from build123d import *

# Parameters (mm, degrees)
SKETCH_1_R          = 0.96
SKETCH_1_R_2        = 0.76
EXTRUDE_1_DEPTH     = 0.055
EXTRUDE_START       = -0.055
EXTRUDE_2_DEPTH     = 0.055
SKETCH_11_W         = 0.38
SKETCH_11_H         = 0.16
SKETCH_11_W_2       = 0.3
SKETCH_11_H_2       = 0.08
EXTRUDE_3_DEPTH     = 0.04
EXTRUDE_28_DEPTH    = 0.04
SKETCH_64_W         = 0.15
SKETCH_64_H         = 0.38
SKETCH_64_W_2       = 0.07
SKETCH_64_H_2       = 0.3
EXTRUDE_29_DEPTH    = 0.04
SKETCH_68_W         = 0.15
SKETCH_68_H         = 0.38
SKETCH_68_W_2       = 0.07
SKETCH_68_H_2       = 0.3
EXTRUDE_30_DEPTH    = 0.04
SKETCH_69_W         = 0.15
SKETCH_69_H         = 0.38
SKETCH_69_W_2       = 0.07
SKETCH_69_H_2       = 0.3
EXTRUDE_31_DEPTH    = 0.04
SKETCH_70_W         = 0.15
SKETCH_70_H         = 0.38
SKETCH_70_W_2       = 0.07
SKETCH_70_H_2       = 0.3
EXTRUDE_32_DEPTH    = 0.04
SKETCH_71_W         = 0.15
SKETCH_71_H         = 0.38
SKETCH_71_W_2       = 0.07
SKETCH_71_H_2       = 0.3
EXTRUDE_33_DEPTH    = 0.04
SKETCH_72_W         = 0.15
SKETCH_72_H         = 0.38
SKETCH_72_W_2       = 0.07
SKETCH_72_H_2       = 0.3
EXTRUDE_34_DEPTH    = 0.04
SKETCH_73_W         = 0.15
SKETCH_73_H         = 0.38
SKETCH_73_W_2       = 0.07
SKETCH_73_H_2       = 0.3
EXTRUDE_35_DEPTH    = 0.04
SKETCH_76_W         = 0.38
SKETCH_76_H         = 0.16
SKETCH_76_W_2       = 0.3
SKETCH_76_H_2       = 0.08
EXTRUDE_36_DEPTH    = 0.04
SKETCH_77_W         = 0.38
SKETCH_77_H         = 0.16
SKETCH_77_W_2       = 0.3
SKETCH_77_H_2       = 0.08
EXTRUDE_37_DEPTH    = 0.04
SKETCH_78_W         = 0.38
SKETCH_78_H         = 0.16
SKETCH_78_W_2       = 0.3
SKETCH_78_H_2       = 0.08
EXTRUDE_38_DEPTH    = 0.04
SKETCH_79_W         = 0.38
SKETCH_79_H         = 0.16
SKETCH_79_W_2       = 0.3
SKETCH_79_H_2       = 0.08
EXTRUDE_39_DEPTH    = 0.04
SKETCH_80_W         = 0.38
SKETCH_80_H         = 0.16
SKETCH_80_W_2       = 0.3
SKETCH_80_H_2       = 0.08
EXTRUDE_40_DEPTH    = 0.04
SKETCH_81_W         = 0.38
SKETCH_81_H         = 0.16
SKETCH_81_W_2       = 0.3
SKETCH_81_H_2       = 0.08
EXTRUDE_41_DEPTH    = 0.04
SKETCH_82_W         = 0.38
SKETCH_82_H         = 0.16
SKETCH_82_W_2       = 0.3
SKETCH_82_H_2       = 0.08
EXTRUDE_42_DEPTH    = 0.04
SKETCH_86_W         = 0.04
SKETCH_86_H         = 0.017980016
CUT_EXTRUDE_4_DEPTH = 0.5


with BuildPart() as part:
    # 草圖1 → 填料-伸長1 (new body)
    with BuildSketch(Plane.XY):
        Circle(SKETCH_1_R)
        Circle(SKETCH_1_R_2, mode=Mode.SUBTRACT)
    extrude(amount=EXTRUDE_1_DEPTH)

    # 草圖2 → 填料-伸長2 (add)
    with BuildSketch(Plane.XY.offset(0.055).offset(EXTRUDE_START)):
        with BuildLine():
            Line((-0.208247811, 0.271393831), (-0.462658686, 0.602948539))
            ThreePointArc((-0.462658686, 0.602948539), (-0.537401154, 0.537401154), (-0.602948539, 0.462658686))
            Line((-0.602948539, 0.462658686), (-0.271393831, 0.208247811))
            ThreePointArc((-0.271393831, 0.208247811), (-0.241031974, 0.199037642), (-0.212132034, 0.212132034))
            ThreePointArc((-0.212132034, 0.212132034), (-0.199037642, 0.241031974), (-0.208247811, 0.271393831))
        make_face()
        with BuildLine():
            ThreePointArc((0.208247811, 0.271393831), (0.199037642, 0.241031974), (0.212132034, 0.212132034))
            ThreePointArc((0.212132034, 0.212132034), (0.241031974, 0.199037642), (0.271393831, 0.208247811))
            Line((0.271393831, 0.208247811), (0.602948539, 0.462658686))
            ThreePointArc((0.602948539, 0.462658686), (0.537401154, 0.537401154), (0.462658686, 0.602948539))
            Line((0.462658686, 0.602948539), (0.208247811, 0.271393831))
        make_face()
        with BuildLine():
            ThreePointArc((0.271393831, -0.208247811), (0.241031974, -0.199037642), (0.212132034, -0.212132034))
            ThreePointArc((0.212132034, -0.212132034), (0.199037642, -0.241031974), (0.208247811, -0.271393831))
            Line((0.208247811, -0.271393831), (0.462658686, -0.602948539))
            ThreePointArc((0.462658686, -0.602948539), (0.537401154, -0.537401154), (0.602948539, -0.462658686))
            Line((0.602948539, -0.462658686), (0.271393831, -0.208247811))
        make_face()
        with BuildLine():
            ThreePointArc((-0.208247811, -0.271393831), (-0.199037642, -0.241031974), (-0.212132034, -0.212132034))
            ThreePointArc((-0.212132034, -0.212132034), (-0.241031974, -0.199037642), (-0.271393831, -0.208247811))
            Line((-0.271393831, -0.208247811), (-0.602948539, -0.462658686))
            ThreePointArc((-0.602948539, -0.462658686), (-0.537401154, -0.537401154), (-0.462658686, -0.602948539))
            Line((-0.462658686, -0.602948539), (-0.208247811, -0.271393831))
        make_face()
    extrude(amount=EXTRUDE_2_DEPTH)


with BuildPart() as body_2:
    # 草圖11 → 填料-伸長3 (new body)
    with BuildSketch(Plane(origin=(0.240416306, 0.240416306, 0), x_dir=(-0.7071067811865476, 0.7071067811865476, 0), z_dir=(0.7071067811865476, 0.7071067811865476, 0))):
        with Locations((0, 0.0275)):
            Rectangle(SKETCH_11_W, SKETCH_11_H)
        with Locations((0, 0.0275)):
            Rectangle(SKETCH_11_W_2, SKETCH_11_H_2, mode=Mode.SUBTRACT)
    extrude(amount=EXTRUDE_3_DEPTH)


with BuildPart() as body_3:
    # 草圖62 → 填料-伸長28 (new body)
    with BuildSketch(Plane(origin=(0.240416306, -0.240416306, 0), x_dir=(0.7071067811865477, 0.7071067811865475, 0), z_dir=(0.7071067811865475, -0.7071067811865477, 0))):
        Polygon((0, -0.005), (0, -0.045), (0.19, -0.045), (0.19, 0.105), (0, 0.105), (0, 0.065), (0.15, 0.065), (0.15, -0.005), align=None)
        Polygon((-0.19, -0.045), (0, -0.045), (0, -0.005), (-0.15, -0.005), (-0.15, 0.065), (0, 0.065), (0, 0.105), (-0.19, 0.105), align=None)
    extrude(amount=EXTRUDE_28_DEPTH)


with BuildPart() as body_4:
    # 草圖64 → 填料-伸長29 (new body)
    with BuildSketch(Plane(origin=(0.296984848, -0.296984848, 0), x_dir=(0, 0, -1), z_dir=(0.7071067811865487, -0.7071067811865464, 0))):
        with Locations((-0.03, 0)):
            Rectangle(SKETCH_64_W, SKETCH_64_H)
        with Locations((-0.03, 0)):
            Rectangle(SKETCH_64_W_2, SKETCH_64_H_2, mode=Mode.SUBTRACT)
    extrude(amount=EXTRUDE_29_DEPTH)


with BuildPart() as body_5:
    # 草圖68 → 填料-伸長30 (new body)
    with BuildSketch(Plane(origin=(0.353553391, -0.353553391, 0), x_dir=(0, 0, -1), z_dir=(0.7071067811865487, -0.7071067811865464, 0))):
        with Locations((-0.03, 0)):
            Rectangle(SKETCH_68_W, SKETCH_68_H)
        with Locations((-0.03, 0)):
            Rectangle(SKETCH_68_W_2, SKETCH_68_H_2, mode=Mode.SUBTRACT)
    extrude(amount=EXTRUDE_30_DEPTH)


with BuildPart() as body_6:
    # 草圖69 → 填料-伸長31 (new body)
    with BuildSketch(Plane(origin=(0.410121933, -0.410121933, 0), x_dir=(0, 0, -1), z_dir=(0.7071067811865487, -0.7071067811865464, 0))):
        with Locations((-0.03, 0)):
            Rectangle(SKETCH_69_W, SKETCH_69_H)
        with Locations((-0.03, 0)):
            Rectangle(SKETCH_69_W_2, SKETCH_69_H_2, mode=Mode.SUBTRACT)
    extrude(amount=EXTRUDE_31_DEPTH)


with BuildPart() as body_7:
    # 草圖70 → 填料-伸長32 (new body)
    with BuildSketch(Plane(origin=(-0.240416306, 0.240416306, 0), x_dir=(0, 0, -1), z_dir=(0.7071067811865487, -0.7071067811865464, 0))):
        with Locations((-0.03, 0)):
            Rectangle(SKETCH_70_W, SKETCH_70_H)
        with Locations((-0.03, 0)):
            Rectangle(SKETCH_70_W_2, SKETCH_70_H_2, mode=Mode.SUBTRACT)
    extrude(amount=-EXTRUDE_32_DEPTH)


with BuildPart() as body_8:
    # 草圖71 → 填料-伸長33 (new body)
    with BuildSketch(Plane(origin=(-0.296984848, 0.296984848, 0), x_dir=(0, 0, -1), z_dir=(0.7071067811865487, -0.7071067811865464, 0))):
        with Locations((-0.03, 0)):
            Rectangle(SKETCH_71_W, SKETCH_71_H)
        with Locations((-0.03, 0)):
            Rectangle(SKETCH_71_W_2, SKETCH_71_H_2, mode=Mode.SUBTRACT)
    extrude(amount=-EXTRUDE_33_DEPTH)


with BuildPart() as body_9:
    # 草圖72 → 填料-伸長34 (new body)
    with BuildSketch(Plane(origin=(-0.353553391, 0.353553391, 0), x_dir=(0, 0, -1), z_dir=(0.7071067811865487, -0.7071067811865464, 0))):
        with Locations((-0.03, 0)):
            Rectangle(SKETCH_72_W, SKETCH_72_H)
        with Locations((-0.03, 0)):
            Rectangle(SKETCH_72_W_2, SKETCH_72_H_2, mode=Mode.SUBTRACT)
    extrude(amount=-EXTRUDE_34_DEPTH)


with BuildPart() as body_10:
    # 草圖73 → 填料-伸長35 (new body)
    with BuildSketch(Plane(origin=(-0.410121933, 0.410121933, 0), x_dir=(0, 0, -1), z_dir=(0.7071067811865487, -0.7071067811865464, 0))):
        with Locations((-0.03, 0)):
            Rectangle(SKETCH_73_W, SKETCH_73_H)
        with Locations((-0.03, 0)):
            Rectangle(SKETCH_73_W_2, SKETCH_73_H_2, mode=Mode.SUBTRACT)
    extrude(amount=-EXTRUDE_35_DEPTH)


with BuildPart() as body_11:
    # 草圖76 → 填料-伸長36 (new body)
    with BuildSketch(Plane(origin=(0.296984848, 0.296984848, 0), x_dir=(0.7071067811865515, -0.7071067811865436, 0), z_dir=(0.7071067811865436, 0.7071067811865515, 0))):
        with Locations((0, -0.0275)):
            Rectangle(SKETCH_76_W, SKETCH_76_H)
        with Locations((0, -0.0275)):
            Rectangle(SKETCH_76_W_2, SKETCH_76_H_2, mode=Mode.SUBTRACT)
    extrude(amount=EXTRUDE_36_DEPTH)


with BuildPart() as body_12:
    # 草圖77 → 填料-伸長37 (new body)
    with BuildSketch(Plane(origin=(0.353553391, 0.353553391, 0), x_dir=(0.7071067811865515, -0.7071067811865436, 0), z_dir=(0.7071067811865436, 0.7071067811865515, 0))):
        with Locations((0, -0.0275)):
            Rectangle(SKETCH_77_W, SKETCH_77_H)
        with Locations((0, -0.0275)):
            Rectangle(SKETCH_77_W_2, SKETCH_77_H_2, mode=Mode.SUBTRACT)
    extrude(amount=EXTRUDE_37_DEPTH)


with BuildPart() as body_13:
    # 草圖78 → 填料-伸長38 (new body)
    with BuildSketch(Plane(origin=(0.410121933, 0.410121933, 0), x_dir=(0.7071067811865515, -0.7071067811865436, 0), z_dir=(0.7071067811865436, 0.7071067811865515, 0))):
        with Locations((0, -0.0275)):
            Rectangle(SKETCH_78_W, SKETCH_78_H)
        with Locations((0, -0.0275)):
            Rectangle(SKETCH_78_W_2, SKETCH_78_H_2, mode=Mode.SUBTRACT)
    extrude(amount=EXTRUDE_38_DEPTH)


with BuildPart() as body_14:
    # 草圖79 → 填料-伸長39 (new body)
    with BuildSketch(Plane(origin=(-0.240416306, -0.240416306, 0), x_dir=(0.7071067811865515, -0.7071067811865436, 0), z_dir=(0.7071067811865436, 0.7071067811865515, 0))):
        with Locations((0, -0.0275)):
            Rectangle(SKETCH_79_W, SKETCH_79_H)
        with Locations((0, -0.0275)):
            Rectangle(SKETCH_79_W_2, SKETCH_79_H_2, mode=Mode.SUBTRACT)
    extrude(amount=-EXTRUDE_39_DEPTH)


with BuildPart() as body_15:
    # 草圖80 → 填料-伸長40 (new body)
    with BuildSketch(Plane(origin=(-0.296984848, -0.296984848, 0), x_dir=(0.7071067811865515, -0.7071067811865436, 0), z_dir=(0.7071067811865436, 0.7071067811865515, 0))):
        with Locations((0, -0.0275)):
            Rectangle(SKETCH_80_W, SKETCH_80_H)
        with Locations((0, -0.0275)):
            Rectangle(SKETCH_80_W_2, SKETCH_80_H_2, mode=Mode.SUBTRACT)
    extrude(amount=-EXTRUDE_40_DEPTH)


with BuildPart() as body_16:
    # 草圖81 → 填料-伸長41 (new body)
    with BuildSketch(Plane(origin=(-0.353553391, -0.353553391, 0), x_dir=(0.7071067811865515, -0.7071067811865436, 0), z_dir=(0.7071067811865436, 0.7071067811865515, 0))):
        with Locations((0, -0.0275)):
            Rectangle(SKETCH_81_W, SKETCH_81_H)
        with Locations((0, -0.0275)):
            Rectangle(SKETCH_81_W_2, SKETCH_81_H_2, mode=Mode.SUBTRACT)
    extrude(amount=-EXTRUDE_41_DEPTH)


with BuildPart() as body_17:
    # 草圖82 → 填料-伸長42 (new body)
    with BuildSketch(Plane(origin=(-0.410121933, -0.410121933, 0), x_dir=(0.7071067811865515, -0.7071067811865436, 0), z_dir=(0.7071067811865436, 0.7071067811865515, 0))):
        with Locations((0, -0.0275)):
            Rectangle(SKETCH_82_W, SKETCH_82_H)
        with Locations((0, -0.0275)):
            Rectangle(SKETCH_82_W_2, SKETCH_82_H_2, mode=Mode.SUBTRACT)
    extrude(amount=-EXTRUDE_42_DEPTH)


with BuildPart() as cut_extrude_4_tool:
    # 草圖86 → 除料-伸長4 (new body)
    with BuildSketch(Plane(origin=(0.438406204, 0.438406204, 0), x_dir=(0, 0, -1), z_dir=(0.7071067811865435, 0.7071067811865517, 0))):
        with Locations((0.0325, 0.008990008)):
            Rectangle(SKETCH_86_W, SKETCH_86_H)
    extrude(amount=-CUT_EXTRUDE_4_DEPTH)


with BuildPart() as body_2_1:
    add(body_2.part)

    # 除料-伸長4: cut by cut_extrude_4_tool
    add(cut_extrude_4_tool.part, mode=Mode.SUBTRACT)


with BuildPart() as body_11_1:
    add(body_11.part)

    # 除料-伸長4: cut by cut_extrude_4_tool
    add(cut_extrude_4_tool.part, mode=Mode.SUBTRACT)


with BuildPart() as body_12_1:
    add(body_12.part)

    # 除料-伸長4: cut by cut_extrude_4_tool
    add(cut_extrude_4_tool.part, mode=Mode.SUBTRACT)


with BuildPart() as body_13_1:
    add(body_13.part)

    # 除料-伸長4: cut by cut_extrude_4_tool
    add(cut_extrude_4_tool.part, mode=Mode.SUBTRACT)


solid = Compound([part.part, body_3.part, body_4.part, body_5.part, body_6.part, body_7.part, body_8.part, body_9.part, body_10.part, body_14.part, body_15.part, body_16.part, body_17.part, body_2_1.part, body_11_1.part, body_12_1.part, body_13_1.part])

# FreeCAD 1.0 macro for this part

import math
import FreeCAD as App
import Part
import Sketcher
from FreeCAD import Vector
Q = App.Units.Quantity


def add_polygon(sketch, points):
    """Adds a closed chain of lines whose ends are joined by coincident constraints."""
    first, n = sketch.GeometryCount, len(points)
    for a, b in zip(points, points[1:] + points[:1]):
        sketch.addGeometry(Part.LineSegment(App.Vector(*a, 0), App.Vector(*b, 0)), False)
    for i in range(n):
        sketch.addConstraint(Sketcher.Constraint("Coincident", first + i, 2, first + (i + 1) % n, 1))

doc = App.newDocument("Part")
params = doc.addObject("Spreadsheet::Sheet", "Params")
for row, (alias, value) in enumerate([
    ("sketch1_diameter", "1.92 mm"),
    ("sketch1_diameter2", "1.52 mm"),
    ("pad1_length", "0.055 mm"),
    ("sketch2_radius", "0.76 mm"),
    ("pad2_length", "0.055 mm"),
    ("sketch3_width", "0.3 mm"),
    ("sketch3_width2", "0.38 mm"),
    ("sketch3_height", "0.16 mm"),
    ("sketch3_height2", "0.08 mm"),
    ("pad3_length", "0.04 mm"),
    ("sketch4_width", "0.3 mm"),
    ("sketch4_width2", "0.38 mm"),
    ("sketch4_height", "0.15 mm"),
    ("sketch4_height2", "0.07 mm"),
    ("pad4_length", "0.04 mm"),
    ("sketch5_height", "0.3 mm"),
    ("sketch5_width", "0.15 mm"),
    ("sketch5_width2", "0.07 mm"),
    ("sketch5_height2", "0.38 mm"),
    ("pad5_length", "0.04 mm"),
    ("sketch6_height", "0.3 mm"),
    ("sketch6_width", "0.15 mm"),
    ("sketch6_width2", "0.07 mm"),
    ("sketch6_height2", "0.38 mm"),
    ("pad6_length", "0.04 mm"),
    ("sketch7_height", "0.3 mm"),
    ("sketch7_width", "0.15 mm"),
    ("sketch7_width2", "0.07 mm"),
    ("sketch7_height2", "0.38 mm"),
    ("pad7_length", "0.04 mm"),
    ("sketch8_height", "0.3 mm"),
    ("sketch8_width", "0.15 mm"),
    ("sketch8_width2", "0.07 mm"),
    ("sketch8_height2", "0.38 mm"),
    ("pad8_length", "0.04 mm"),
    ("sketch9_height", "0.3 mm"),
    ("sketch9_width", "0.15 mm"),
    ("sketch9_width2", "0.07 mm"),
    ("sketch9_height2", "0.38 mm"),
    ("pad9_length", "0.04 mm"),
    ("sketch10_height", "0.3 mm"),
    ("sketch10_width", "0.15 mm"),
    ("sketch10_width2", "0.07 mm"),
    ("sketch10_height2", "0.38 mm"),
    ("pad10_length", "0.04 mm"),
    ("sketch11_height", "0.3 mm"),
    ("sketch11_width", "0.15 mm"),
    ("sketch11_width2", "0.07 mm"),
    ("sketch11_height2", "0.38 mm"),
    ("pad11_length", "0.04 mm"),
    ("sketch12_width", "0.3 mm"),
    ("sketch12_width2", "0.38 mm"),
    ("sketch12_height", "0.16 mm"),
    ("sketch12_height2", "0.08 mm"),
    ("pad12_length", "0.04 mm"),
    ("sketch13_width", "0.3 mm"),
    ("sketch13_width2", "0.38 mm"),
    ("sketch13_height", "0.16 mm"),
    ("sketch13_height2", "0.08 mm"),
    ("pad13_length", "0.04 mm"),
    ("sketch14_width", "0.3 mm"),
    ("sketch14_width2", "0.38 mm"),
    ("sketch14_height", "0.16 mm"),
    ("sketch14_height2", "0.08 mm"),
    ("pad14_length", "0.04 mm"),
    ("sketch15_width", "0.3 mm"),
    ("sketch15_width2", "0.38 mm"),
    ("sketch15_height", "0.16 mm"),
    ("sketch15_height2", "0.08 mm"),
    ("pad15_length", "0.04 mm"),
    ("sketch16_width", "0.3 mm"),
    ("sketch16_width2", "0.38 mm"),
    ("sketch16_height", "0.16 mm"),
    ("sketch16_height2", "0.08 mm"),
    ("pad16_length", "0.04 mm"),
    ("sketch17_width", "0.3 mm"),
    ("sketch17_width2", "0.38 mm"),
    ("sketch17_height", "0.16 mm"),
    ("sketch17_height2", "0.08 mm"),
    ("pad17_length", "0.04 mm"),
    ("sketch18_width", "0.3 mm"),
    ("sketch18_width2", "0.38 mm"),
    ("sketch18_height", "0.16 mm"),
    ("sketch18_height2", "0.08 mm"),
    ("pad18_length", "0.04 mm"),
    ("sketch19_width", "0.04 mm"),
    ("pad19_length", "0.5 mm"),
], start=1):
    params.set(f"A{row}", alias)
    params.set(f"B{row}", "=" + value)
    params.setAlias(f"B{row}", alias)

body = doc.addObject("PartDesign::Body", "Body")

# Sketch on XY plane
sketch1 = body.newObject("Sketcher::SketchObject", "Sketch")
sketch1.AttachmentSupport = (doc.getObject("XY_Plane"), [""])
sketch1.MapMode = "FlatFace"
sketch1.addGeometry([
    Part.Circle(Vector(0, 0, 0), Vector(0, 0, 1), 1),
    Part.Circle(Vector(0, 0, 0), Vector(0, 0, 1), 0.8),
], False)
sketch1.addConstraint([
    Sketcher.Constraint("Coincident", 0, 3, -1, 1),
    Sketcher.Constraint("Coincident", 1, 3, -1, 1),
    Sketcher.Constraint("Diameter", 0, 1.92),
    Sketcher.Constraint("Diameter", 1, 1.52),
])
sketch1.setExpression("Constraints[2]", "Params.sketch1_diameter")
sketch1.setExpression("Constraints[3]", "Params.sketch1_diameter2")
pad1 = body.newObject("PartDesign::Pad", "Pad")
pad1.Profile = sketch1
pad1.setExpression("Length", "Params.pad1_length")

# Sketch on XY plane
sketch2 = body.newObject("Sketcher::SketchObject", "Sketch001")
sketch2.AttachmentSupport = (doc.getObject("XY_Plane"), [""])
sketch2.MapMode = "FlatFace"
sketch2.addGeometry([
    Part.LineSegment(Vector(-0.208, 0.271, 0), Vector(-0.463, 0.603, 0)),  # 0
    Part.ArcOfCircle(Part.Circle(Vector(0, 0, 0), Vector(0, 0, 1), 0.76), math.radians(127.5), math.radians(142.5)),  # 1
    Part.LineSegment(Vector(-0.603, 0.463, 0), Vector(-0.271, 0.208, 0)),  # 2
    Part.ArcOfCircle(Part.Circle(Vector(-0.244, 0.244, 0), Vector(0, 0, 1), 0.045), math.radians(-128), math.radians(-45)),  # 3
    Part.ArcOfCircle(Part.Circle(Vector(-0.244, 0.244, 0), Vector(0, 0, 1), 0.045), math.radians(-45), math.radians(38)),  # 4
    Part.ArcOfCircle(Part.Circle(Vector(0.244, 0.244, 0), Vector(0, 0, 1), 0.045), math.radians(142), math.radians(225)),  # 5
    Part.ArcOfCircle(Part.Circle(Vector(0.244, 0.244, 0), Vector(0, 0, 1), 0.045), math.radians(-135), math.radians(-52)),  # 6
    Part.LineSegment(Vector(0.271, 0.208, 0), Vector(0.603, 0.463, 0)),  # 7
    Part.ArcOfCircle(Part.Circle(Vector(0, 0, 0), Vector(0, 0, 1), 0.76), math.radians(37.5), math.radians(52.5)),  # 8
    Part.LineSegment(Vector(0.463, 0.603, 0), Vector(0.208, 0.271, 0)),  # 9
    Part.ArcOfCircle(Part.Circle(Vector(0.244, -0.244, 0), Vector(0, 0, 1), 0.045), math.radians(52), math.radians(135)),  # 10
    Part.ArcOfCircle(Part.Circle(Vector(0.244, -0.244, 0), Vector(0, 0, 1), 0.045), math.radians(135), math.radians(218)),  # 11
    Part.LineSegment(Vector(0.208, -0.271, 0), Vector(0.463, -0.603, 0)),  # 12
    Part.ArcOfCircle(Part.Circle(Vector(0, 0, 0), Vector(0, 0, 1), 0.76), math.radians(-52.5), math.radians(-37.5)),  # 13
    Part.LineSegment(Vector(0.603, -0.463, 0), Vector(0.271, -0.208, 0)),  # 14
    Part.ArcOfCircle(Part.Circle(Vector(-0.244, -0.244, 0), Vector(0, 0, 1), 0.045), math.radians(-38), math.radians(45)),  # 15
    Part.ArcOfCircle(Part.Circle(Vector(-0.244, -0.244, 0), Vector(0, 0, 1), 0.045), math.radians(45), math.radians(128)),  # 16
    Part.LineSegment(Vector(-0.271, -0.208, 0), Vector(-0.603, -0.463, 0)),  # 17
    Part.ArcOfCircle(Part.Circle(Vector(0, 0, 0), Vector(0, 0, 1), 0.76), math.radians(-142.5), math.radians(-127.5)),  # 18
    Part.LineSegment(Vector(-0.463, -0.603, 0), Vector(-0.208, -0.271, 0)),  # 19
], False)
sketch2.addConstraint([
    Sketcher.Constraint("Coincident", 0, 2, 1, 1),
    Sketcher.Constraint("Coincident", 1, 2, 2, 1),
    Sketcher.Constraint("Tangent", 2, 2, 3, 1),
    Sketcher.Constraint("Tangent", 3, 2, 4, 1),
    Sketcher.Constraint("Tangent", 4, 2, 0, 1),
    Sketcher.Constraint("Tangent", 5, 2, 6, 1),
    Sketcher.Constraint("Tangent", 6, 2, 7, 1),
    Sketcher.Constraint("Coincident", 7, 2, 8, 1),
    Sketcher.Constraint("Coincident", 8, 2, 9, 1),
    Sketcher.Constraint("Tangent", 9, 2, 5, 1),
    Sketcher.Constraint("Tangent", 10, 2, 11, 1),
    Sketcher.Constraint("Tangent", 11, 2, 12, 1),
    Sketcher.Constraint("Coincident", 12, 2, 13, 1),
    Sketcher.Constraint("Coincident", 13, 2, 14, 1),
    Sketcher.Constraint("Tangent", 14, 2, 10, 1),
    Sketcher.Constraint("Tangent", 15, 2, 16, 1),
    Sketcher.Constraint("Tangent", 16, 2, 17, 1),
    Sketcher.Constraint("Coincident", 17, 2, 18, 1),
    Sketcher.Constraint("Coincident", 18, 2, 19, 1),
    Sketcher.Constraint("Tangent", 19, 2, 15, 1),
    Sketcher.Constraint("Coincident", 1, 3, -1, 1),
    Sketcher.Constraint("Coincident", 8, 3, -1, 1),
    Sketcher.Constraint("Coincident", 13, 3, -1, 1),
    Sketcher.Constraint("Coincident", 18, 3, -1, 1),
    Sketcher.Constraint("Equal", 3, 4),
    Sketcher.Constraint("Equal", 4, 5),
    Sketcher.Constraint("Equal", 5, 6),
    Sketcher.Constraint("Equal", 1, 8),
    Sketcher.Constraint("Equal", 6, 10),
    Sketcher.Constraint("Equal", 10, 11),
    Sketcher.Constraint("Equal", 8, 13),
    Sketcher.Constraint("Equal", 11, 15),
    Sketcher.Constraint("Equal", 15, 16),
    Sketcher.Constraint("Equal", 13, 18),
    Sketcher.Constraint("Symmetric", 3, 3, 10, 3, -1, 1),
    Sketcher.Constraint("Symmetric", 5, 3, 15, 3, -1, 1),
    Sketcher.Constraint("Symmetric", 3, 3, 5, 3, -2),
    Sketcher.Constraint("Perpendicular", 0, 7),
    Sketcher.Constraint("Perpendicular", 2, 9),
    Sketcher.Constraint("Perpendicular", 7, 12),
    Sketcher.Constraint("Perpendicular", 9, 14),
    Sketcher.Constraint("Perpendicular", 12, 17),
    Sketcher.Constraint("Perpendicular", 14, 19),
    Sketcher.Constraint("Horizontal", 3, 2, 5, 2),
    Sketcher.Constraint("Horizontal", 2, 2, 6, 2),
    Sketcher.Constraint("Horizontal", 10, 2, 15, 2),
    Sketcher.Constraint("Vertical", 5, 2, 10, 2),
    Sketcher.Constraint("Equal", 0, 2),
    Sketcher.Constraint("Radius", 1, 0.76),
    Sketcher.Constraint("Angle", 0, Q("127.5 deg")),
    Sketcher.Constraint("Radius", 3, 0.045036),
    Sketcher.Constraint("DistanceY", 6, 2, 8, 2, 0.394701),
    Sketcher.Constraint("DistanceX", 2, 2, 3, 2, 0.059262),
])
sketch2.setExpression("Constraints[48]", "Params.sketch2_radius")
pad2 = body.newObject("PartDesign::Pad", "Pad001")
pad2.Profile = sketch2
pad2.setExpression("Length", "Params.pad2_length")
body2 = doc.addObject("PartDesign::Body", "Body001")

# Sketch on an angled plane
sketch3 = body2.newObject("Sketcher::SketchObject", "Sketch002")
sketch3.Placement = App.Placement(Vector(0.240416, 0.240416, 0), App.Rotation(Vector(-0.707106781, 0.707106781, 0), Vector(0, 0, 0.999999999), Vector(0.707106781, 0.707106781, 0), "ZXY"))
add_polygon(sketch3, [(-0.19, 0.11), (-0.19, -0.05), (0.19, -0.05), (0.19, 0.11)])  # lines 0-3
add_polygon(sketch3, [(0.15, -0.01), (-0.15, -0.01), (-0.15, 0.07), (0.15, 0.07)])  # lines 4-7
sketch3.addConstraint([
    Sketcher.Constraint("Vertical", 0),
    Sketcher.Constraint("Horizontal", 1),
    Sketcher.Constraint("Vertical", 2),
    Sketcher.Constraint("Horizontal", 3),
    Sketcher.Constraint("Horizontal", 4),
    Sketcher.Constraint("Vertical", 5),
    Sketcher.Constraint("Horizontal", 6),
    Sketcher.Constraint("Vertical", 7),
    Sketcher.Constraint("DistanceX", 4, 2, 4, 1, 0.3),
    Sketcher.Constraint("DistanceX", 1, 1, 1, 2, 0.38),
    Sketcher.Constraint("DistanceY", 0, 2, 0, 1, 0.16),
    Sketcher.Constraint("DistanceY", 5, 1, 5, 2, 0.08),
    Sketcher.Constraint("DistanceX", 0, 2, -1, 1, 0.19),
    Sketcher.Constraint("DistanceX", 4, 2, -1, 1, 0.15),
    Sketcher.Constraint("DistanceY", 0, 2, 4, 2, 0.04),
    Sketcher.Constraint("DistanceY", 0, 2, -1, 1, 0.0525),
])
sketch3.setExpression("Constraints[16]", "Params.sketch3_width")
sketch3.setExpression("Constraints[17]", "Params.sketch3_width2")
sketch3.setExpression("Constraints[18]", "Params.sketch3_height")
sketch3.setExpression("Constraints[19]", "Params.sketch3_height2")
pad3 = body2.newObject("PartDesign::Pad", "Pad002")
pad3.Profile = sketch3
pad3.setExpression("Length", "Params.pad3_length")
body3 = doc.addObject("PartDesign::Body", "Body002")

# Sketch on an angled plane
sketch4 = body3.newObject("Sketcher::SketchObject", "Sketch003")
sketch4.Placement = App.Placement(Vector(0.240416, -0.240416, 0), App.Rotation(Vector(0.707106781, 0.707106781, 0), Vector(0, 0, 0.999999999), Vector(0.707106781, -0.707106781, 0), "ZXY"))
add_polygon(sketch4, [(0.19, -0.04), (0.19, 0.1), (-0.19, 0.1), (-0.19, -0.04)])  # lines 0-3
add_polygon(sketch4, [(0.15, 0.07), (0.15, -0.01), (-0.15, -0.01), (-0.15, 0.07)])  # lines 4-7
sketch4.addConstraint([
    Sketcher.Constraint("Vertical", 0),
    Sketcher.Constraint("Horizontal", 1),
    Sketcher.Constraint("Vertical", 2),
    Sketcher.Constraint("Horizontal", 3),
    Sketcher.Constraint("Vertical", 4),
    Sketcher.Constraint("Horizontal", 5),
    Sketcher.Constraint("Vertical", 6),
    Sketcher.Constraint("Horizontal", 7),
    Sketcher.Constraint("DistanceX", 5, 2, 5, 1, 0.3),
    Sketcher.Constraint("DistanceX", 1, 2, 1, 1, 0.38),
    Sketcher.Constraint("DistanceY", 0, 1, 0, 2, 0.15),
    Sketcher.Constraint("DistanceY", 4, 2, 4, 1, 0.07),
    Sketcher.Constraint("DistanceX", -1, 1, 0, 2, 0.19),
    Sketcher.Constraint("DistanceX", -1, 1, 4, 2, 0.15),
    Sketcher.Constraint("DistanceY", 3, 2, 4, 2, 0.04),
    Sketcher.Constraint("DistanceY", -1, 1, 0, 2, 0.105),
])
sketch4.setExpression("Constraints[16]", "Params.sketch4_width")
sketch4.setExpression("Constraints[17]", "Params.sketch4_width2")
sketch4.setExpression("Constraints[18]", "Params.sketch4_height")
sketch4.setExpression("Constraints[19]", "Params.sketch4_height2")
pad4 = body3.newObject("PartDesign::Pad", "Pad003")
pad4.Profile = sketch4
pad4.setExpression("Length", "Params.pad4_length")
body4 = doc.addObject("PartDesign::Body", "Body003")

# Sketch on an angled plane
sketch5 = body4.newObject("Sketcher::SketchObject", "Sketch004")
sketch5.Placement = App.Placement(Vector(0.296985, -0.296985, 0), App.Rotation(Vector(0, 0, -1), Vector(0.707106781, 0.707106781, 0), Vector(0.707106781, -0.707106781, 0), "ZXY"))
add_polygon(sketch5, [(-0.1, 0.19), (-0.1, -0.19), (0.04, -0.19), (0.04, 0.19)])  # lines 0-3
add_polygon(sketch5, [(0.01, -0.15), (-0.07, -0.15), (-0.07, 0.15), (0.01, 0.15)])  # lines 4-7
sketch5.addConstraint([
    Sketcher.Constraint("Vertical", 0),
    Sketcher.Constraint("Horizontal", 1),
    Sketcher.Constraint("Vertical", 2),
    Sketcher.Constraint("Horizontal", 3),
    Sketcher.Constraint("Horizontal", 4),
    Sketcher.Constraint("Vertical", 5),
    Sketcher.Constraint("Horizontal", 6),
    Sketcher.Constraint("Vertical", 7),
    Sketcher.Constraint("DistanceY", 5, 1, 5, 2, 0.3),
    Sketcher.Constraint("DistanceX", 1, 1, 1, 2, 0.15),
    Sketcher.Constraint("DistanceX", 4, 2, 4, 1, 0.07),
    Sketcher.Constraint("DistanceY", 0, 2, 0, 1, 0.38),
    Sketcher.Constraint("DistanceY", 0, 2, -1, 1, 0.19),
    Sketcher.Constraint("DistanceY", 4, 2, -1, 1, 0.15),
    Sketcher.Constraint("DistanceX", 0, 2, 4, 2, 0.04),
    Sketcher.Constraint("DistanceX", 0, 2, -1, 1, 0.105),
])
sketch5.setExpression("Constraints[16]", "Params.sketch5_height")
sketch5.setExpression("Constraints[17]", "Params.sketch5_width")
sketch5.setExpression("Constraints[18]", "Params.sketch5_width2")
sketch5.setExpression("Constraints[19]", "Params.sketch5_height2")
pad5 = body4.newObject("PartDesign::Pad", "Pad004")
pad5.Profile = sketch5
pad5.setExpression("Length", "Params.pad5_length")
body5 = doc.addObject("PartDesign::Body", "Body004")

# Sketch on an angled plane
sketch6 = body5.newObject("Sketcher::SketchObject", "Sketch005")
sketch6.Placement = App.Placement(Vector(0.353553, -0.353553, 0), App.Rotation(Vector(0, 0, -1), Vector(0.707106781, 0.707106781, 0), Vector(0.707106781, -0.707106781, 0), "ZXY"))
add_polygon(sketch6, [(-0.1, 0.19), (-0.1, -0.19), (0.04, -0.19), (0.04, 0.19)])  # lines 0-3
add_polygon(sketch6, [(0.01, -0.15), (-0.07, -0.15), (-0.07, 0.15), (0.01, 0.15)])  # lines 4-7
sketch6.addConstraint([
    Sketcher.Constraint("Vertical", 0),
    Sketcher.Constraint("Horizontal", 1),
    Sketcher.Constraint("Vertical", 2),
    Sketcher.Constraint("Horizontal", 3),
    Sketcher.Constraint("Horizontal", 4),
    Sketcher.Constraint("Vertical", 5),
    Sketcher.Constraint("Horizontal", 6),
    Sketcher.Constraint("Vertical", 7),
    Sketcher.Constraint("DistanceY", 5, 1, 5, 2, 0.3),
    Sketcher.Constraint("DistanceX", 1, 1, 1, 2, 0.15),
    Sketcher.Constraint("DistanceX", 4, 2, 4, 1, 0.07),
    Sketcher.Constraint("DistanceY", 0, 2, 0, 1, 0.38),
    Sketcher.Constraint("DistanceY", 0, 2, -1, 1, 0.19),
    Sketcher.Constraint("DistanceY", 4, 2, -1, 1, 0.15),
    Sketcher.Constraint("DistanceX", 0, 2, 4, 2, 0.04),
    Sketcher.Constraint("DistanceX", 0, 2, -1, 1, 0.105),
])
sketch6.setExpression("Constraints[16]", "Params.sketch6_height")
sketch6.setExpression("Constraints[17]", "Params.sketch6_width")
sketch6.setExpression("Constraints[18]", "Params.sketch6_width2")
sketch6.setExpression("Constraints[19]", "Params.sketch6_height2")
pad6 = body5.newObject("PartDesign::Pad", "Pad005")
pad6.Profile = sketch6
pad6.setExpression("Length", "Params.pad6_length")
body6 = doc.addObject("PartDesign::Body", "Body005")

# Sketch on an angled plane
sketch7 = body6.newObject("Sketcher::SketchObject", "Sketch006")
sketch7.Placement = App.Placement(Vector(0.410122, -0.410122, 0), App.Rotation(Vector(0, 0, -1), Vector(0.707106781, 0.707106781, 0), Vector(0.707106781, -0.707106781, 0), "ZXY"))
add_polygon(sketch7, [(-0.1, 0.19), (-0.1, -0.19), (0.04, -0.19), (0.04, 0.19)])  # lines 0-3
add_polygon(sketch7, [(0.01, -0.15), (-0.07, -0.15), (-0.07, 0.15), (0.01, 0.15)])  # lines 4-7
sketch7.addConstraint([
    Sketcher.Constraint("Vertical", 0),
    Sketcher.Constraint("Horizontal", 1),
    Sketcher.Constraint("Vertical", 2),
    Sketcher.Constraint("Horizontal", 3),
    Sketcher.Constraint("Horizontal", 4),
    Sketcher.Constraint("Vertical", 5),
    Sketcher.Constraint("Horizontal", 6),
    Sketcher.Constraint("Vertical", 7),
    Sketcher.Constraint("DistanceY", 5, 1, 5, 2, 0.3),
    Sketcher.Constraint("DistanceX", 1, 1, 1, 2, 0.15),
    Sketcher.Constraint("DistanceX", 4, 2, 4, 1, 0.07),
    Sketcher.Constraint("DistanceY", 0, 2, 0, 1, 0.38),
    Sketcher.Constraint("DistanceY", 0, 2, -1, 1, 0.19),
    Sketcher.Constraint("DistanceY", 4, 2, -1, 1, 0.15),
    Sketcher.Constraint("DistanceX", 0, 2, 4, 2, 0.04),
    Sketcher.Constraint("DistanceX", 0, 2, -1, 1, 0.105),
])
sketch7.setExpression("Constraints[16]", "Params.sketch7_height")
sketch7.setExpression("Constraints[17]", "Params.sketch7_width")
sketch7.setExpression("Constraints[18]", "Params.sketch7_width2")
sketch7.setExpression("Constraints[19]", "Params.sketch7_height2")
pad7 = body6.newObject("PartDesign::Pad", "Pad006")
pad7.Profile = sketch7
pad7.setExpression("Length", "Params.pad7_length")
body7 = doc.addObject("PartDesign::Body", "Body006")

# Sketch on an angled plane
sketch8 = body7.newObject("Sketcher::SketchObject", "Sketch007")
sketch8.Placement = App.Placement(Vector(-0.240416, 0.240416, 0), App.Rotation(Vector(0, 0, -1), Vector(0.707106781, 0.707106781, 0), Vector(0.707106781, -0.707106781, 0), "ZXY"))
add_polygon(sketch8, [(-0.1, 0.19), (-0.1, -0.19), (0.04, -0.19), (0.04, 0.19)])  # lines 0-3
add_polygon(sketch8, [(0.01, -0.15), (-0.07, -0.15), (-0.07, 0.15), (0.01, 0.15)])  # lines 4-7
sketch8.addConstraint([
    Sketcher.Constraint("Vertical", 0),
    Sketcher.Constraint("Horizontal", 1),
    Sketcher.Constraint("Vertical", 2),
    Sketcher.Constraint("Horizontal", 3),
    Sketcher.Constraint("Horizontal", 4),
    Sketcher.Constraint("Vertical", 5),
    Sketcher.Constraint("Horizontal", 6),
    Sketcher.Constraint("Vertical", 7),
    Sketcher.Constraint("DistanceY", 5, 1, 5, 2, 0.3),
    Sketcher.Constraint("DistanceX", 1, 1, 1, 2, 0.15),
    Sketcher.Constraint("DistanceX", 4, 2, 4, 1, 0.07),
    Sketcher.Constraint("DistanceY", 0, 2, 0, 1, 0.38),
    Sketcher.Constraint("DistanceY", 0, 2, -1, 1, 0.19),
    Sketcher.Constraint("DistanceY", 4, 2, -1, 1, 0.15),
    Sketcher.Constraint("DistanceX", 0, 2, 4, 2, 0.04),
    Sketcher.Constraint("DistanceX", 0, 2, -1, 1, 0.105),
])
sketch8.setExpression("Constraints[16]", "Params.sketch8_height")
sketch8.setExpression("Constraints[17]", "Params.sketch8_width")
sketch8.setExpression("Constraints[18]", "Params.sketch8_width2")
sketch8.setExpression("Constraints[19]", "Params.sketch8_height2")
pad8 = body7.newObject("PartDesign::Pad", "Pad007")
pad8.Profile = sketch8
pad8.setExpression("Length", "Params.pad8_length")
pad8.Reversed = True
body8 = doc.addObject("PartDesign::Body", "Body007")

# Sketch on an angled plane
sketch9 = body8.newObject("Sketcher::SketchObject", "Sketch008")
sketch9.Placement = App.Placement(Vector(-0.296985, 0.296985, 0), App.Rotation(Vector(0, 0, -1), Vector(0.707106781, 0.707106781, 0), Vector(0.707106781, -0.707106781, 0), "ZXY"))
add_polygon(sketch9, [(-0.1, 0.19), (-0.1, -0.19), (0.04, -0.19), (0.04, 0.19)])  # lines 0-3
add_polygon(sketch9, [(0.01, -0.15), (-0.07, -0.15), (-0.07, 0.15), (0.01, 0.15)])  # lines 4-7
sketch9.addConstraint([
    Sketcher.Constraint("Vertical", 0),
    Sketcher.Constraint("Horizontal", 1),
    Sketcher.Constraint("Vertical", 2),
    Sketcher.Constraint("Horizontal", 3),
    Sketcher.Constraint("Horizontal", 4),
    Sketcher.Constraint("Vertical", 5),
    Sketcher.Constraint("Horizontal", 6),
    Sketcher.Constraint("Vertical", 7),
    Sketcher.Constraint("DistanceY", 5, 1, 5, 2, 0.3),
    Sketcher.Constraint("DistanceX", 1, 1, 1, 2, 0.15),
    Sketcher.Constraint("DistanceX", 4, 2, 4, 1, 0.07),
    Sketcher.Constraint("DistanceY", 0, 2, 0, 1, 0.38),
    Sketcher.Constraint("DistanceY", 0, 2, -1, 1, 0.19),
    Sketcher.Constraint("DistanceY", 4, 2, -1, 1, 0.15),
    Sketcher.Constraint("DistanceX", 0, 2, 4, 2, 0.04),
    Sketcher.Constraint("DistanceX", 0, 2, -1, 1, 0.105),
])
sketch9.setExpression("Constraints[16]", "Params.sketch9_height")
sketch9.setExpression("Constraints[17]", "Params.sketch9_width")
sketch9.setExpression("Constraints[18]", "Params.sketch9_width2")
sketch9.setExpression("Constraints[19]", "Params.sketch9_height2")
pad9 = body8.newObject("PartDesign::Pad", "Pad008")
pad9.Profile = sketch9
pad9.setExpression("Length", "Params.pad9_length")
pad9.Reversed = True
body9 = doc.addObject("PartDesign::Body", "Body008")

# Sketch on an angled plane
sketch10 = body9.newObject("Sketcher::SketchObject", "Sketch009")
sketch10.Placement = App.Placement(Vector(-0.353553, 0.353553, 0), App.Rotation(Vector(0, 0, -1), Vector(0.707106781, 0.707106781, 0), Vector(0.707106781, -0.707106781, 0), "ZXY"))
add_polygon(sketch10, [(-0.1, 0.19), (-0.1, -0.19), (0.04, -0.19), (0.04, 0.19)])  # lines 0-3
add_polygon(sketch10, [(0.01, -0.15), (-0.07, -0.15), (-0.07, 0.15), (0.01, 0.15)])  # lines 4-7
sketch10.addConstraint([
    Sketcher.Constraint("Vertical", 0),
    Sketcher.Constraint("Horizontal", 1),
    Sketcher.Constraint("Vertical", 2),
    Sketcher.Constraint("Horizontal", 3),
    Sketcher.Constraint("Horizontal", 4),
    Sketcher.Constraint("Vertical", 5),
    Sketcher.Constraint("Horizontal", 6),
    Sketcher.Constraint("Vertical", 7),
    Sketcher.Constraint("DistanceY", 5, 1, 5, 2, 0.3),
    Sketcher.Constraint("DistanceX", 1, 1, 1, 2, 0.15),
    Sketcher.Constraint("DistanceX", 4, 2, 4, 1, 0.07),
    Sketcher.Constraint("DistanceY", 0, 2, 0, 1, 0.38),
    Sketcher.Constraint("DistanceY", 0, 2, -1, 1, 0.19),
    Sketcher.Constraint("DistanceY", 4, 2, -1, 1, 0.15),
    Sketcher.Constraint("DistanceX", 0, 2, 4, 2, 0.04),
    Sketcher.Constraint("DistanceX", 0, 2, -1, 1, 0.105),
])
sketch10.setExpression("Constraints[16]", "Params.sketch10_height")
sketch10.setExpression("Constraints[17]", "Params.sketch10_width")
sketch10.setExpression("Constraints[18]", "Params.sketch10_width2")
sketch10.setExpression("Constraints[19]", "Params.sketch10_height2")
pad10 = body9.newObject("PartDesign::Pad", "Pad009")
pad10.Profile = sketch10
pad10.setExpression("Length", "Params.pad10_length")
pad10.Reversed = True
body10 = doc.addObject("PartDesign::Body", "Body009")

# Sketch on an angled plane
sketch11 = body10.newObject("Sketcher::SketchObject", "Sketch010")
sketch11.Placement = App.Placement(Vector(-0.410122, 0.410122, 0), App.Rotation(Vector(0, 0, -1), Vector(0.707106781, 0.707106781, 0), Vector(0.707106781, -0.707106781, 0), "ZXY"))
add_polygon(sketch11, [(-0.1, 0.19), (-0.1, -0.19), (0.04, -0.19), (0.04, 0.19)])  # lines 0-3
add_polygon(sketch11, [(0.01, -0.15), (-0.07, -0.15), (-0.07, 0.15), (0.01, 0.15)])  # lines 4-7
sketch11.addConstraint([
    Sketcher.Constraint("Vertical", 0),
    Sketcher.Constraint("Horizontal", 1),
    Sketcher.Constraint("Vertical", 2),
    Sketcher.Constraint("Horizontal", 3),
    Sketcher.Constraint("Horizontal", 4),
    Sketcher.Constraint("Vertical", 5),
    Sketcher.Constraint("Horizontal", 6),
    Sketcher.Constraint("Vertical", 7),
    Sketcher.Constraint("DistanceY", 5, 1, 5, 2, 0.3),
    Sketcher.Constraint("DistanceX", 1, 1, 1, 2, 0.15),
    Sketcher.Constraint("DistanceX", 4, 2, 4, 1, 0.07),
    Sketcher.Constraint("DistanceY", 0, 2, 0, 1, 0.38),
    Sketcher.Constraint("DistanceY", 0, 2, -1, 1, 0.19),
    Sketcher.Constraint("DistanceY", 4, 2, -1, 1, 0.15),
    Sketcher.Constraint("DistanceX", 0, 2, 4, 2, 0.04),
    Sketcher.Constraint("DistanceX", 0, 2, -1, 1, 0.105),
])
sketch11.setExpression("Constraints[16]", "Params.sketch11_height")
sketch11.setExpression("Constraints[17]", "Params.sketch11_width")
sketch11.setExpression("Constraints[18]", "Params.sketch11_width2")
sketch11.setExpression("Constraints[19]", "Params.sketch11_height2")
pad11 = body10.newObject("PartDesign::Pad", "Pad010")
pad11.Profile = sketch11
pad11.setExpression("Length", "Params.pad11_length")
pad11.Reversed = True
body11 = doc.addObject("PartDesign::Body", "Body010")

# Sketch on an angled plane
sketch12 = body11.newObject("Sketcher::SketchObject", "Sketch011")
sketch12.Placement = App.Placement(Vector(0.296985, 0.296985, 0), App.Rotation(Vector(0.707106781, -0.707106781, 0), Vector(0, 0, -0.999999999), Vector(0.707106781, 0.707106781, 0), "ZXY"))
add_polygon(sketch12, [(-0.19, 0.05), (-0.19, -0.11), (0.19, -0.11), (0.19, 0.05)])  # lines 0-3
add_polygon(sketch12, [(0.15, -0.07), (-0.15, -0.07), (-0.15, 0.01), (0.15, 0.01)])  # lines 4-7
sketch12.addConstraint([
    Sketcher.Constraint("Vertical", 0),
    Sketcher.Constraint("Horizontal", 1),
    Sketcher.Constraint("Vertical", 2),
    Sketcher.Constraint("Horizontal", 3),
    Sketcher.Constraint("Horizontal", 4),
    Sketcher.Constraint("Vertical", 5),
    Sketcher.Constraint("Horizontal", 6),
    Sketcher.Constraint("Vertical", 7),
    Sketcher.Constraint("DistanceX", 4, 2, 4, 1, 0.3),
    Sketcher.Constraint("DistanceX", 1, 1, 1, 2, 0.38),
    Sketcher.Constraint("DistanceY", 0, 2, 0, 1, 0.16),
    Sketcher.Constraint("DistanceY", 5, 1, 5, 2, 0.08),
    Sketcher.Constraint("DistanceX", 0, 2, -1, 1, 0.19),
    Sketcher.Constraint("DistanceX", 4, 2, -1, 1, 0.15),
    Sketcher.Constraint("DistanceY", 0, 2, 4, 2, 0.04),
    Sketcher.Constraint("DistanceY", 0, 2, -1, 1, 0.1075),
])
sketch12.setExpression("Constraints[16]", "Params.sketch12_width")
sketch12.setExpression("Constraints[17]", "Params.sketch12_width2")
sketch12.setExpression("Constraints[18]", "Params.sketch12_height")
sketch12.setExpression("Constraints[19]", "Params.sketch12_height2")
pad12 = body11.newObject("PartDesign::Pad", "Pad011")
pad12.Profile = sketch12
pad12.setExpression("Length", "Params.pad12_length")
body12 = doc.addObject("PartDesign::Body", "Body011")

# Sketch on an angled plane
sketch13 = body12.newObject("Sketcher::SketchObject", "Sketch012")
sketch13.Placement = App.Placement(Vector(0.353553, 0.353553, 0), App.Rotation(Vector(0.707106781, -0.707106781, 0), Vector(0, 0, -0.999999999), Vector(0.707106781, 0.707106781, 0), "ZXY"))
add_polygon(sketch13, [(-0.19, 0.05), (-0.19, -0.11), (0.19, -0.11), (0.19, 0.05)])  # lines 0-3
add_polygon(sketch13, [(0.15, -0.07), (-0.15, -0.07), (-0.15, 0.01), (0.15, 0.01)])  # lines 4-7
sketch13.addConstraint([
    Sketcher.Constraint("Vertical", 0),
    Sketcher.Constraint("Horizontal", 1),
    Sketcher.Constraint("Vertical", 2),
    Sketcher.Constraint("Horizontal", 3),
    Sketcher.Constraint("Horizontal", 4),
    Sketcher.Constraint("Vertical", 5),
    Sketcher.Constraint("Horizontal", 6),
    Sketcher.Constraint("Vertical", 7),
    Sketcher.Constraint("DistanceX", 4, 2, 4, 1, 0.3),
    Sketcher.Constraint("DistanceX", 1, 1, 1, 2, 0.38),
    Sketcher.Constraint("DistanceY", 0, 2, 0, 1, 0.16),
    Sketcher.Constraint("DistanceY", 5, 1, 5, 2, 0.08),
    Sketcher.Constraint("DistanceX", 0, 2, -1, 1, 0.19),
    Sketcher.Constraint("DistanceX", 4, 2, -1, 1, 0.15),
    Sketcher.Constraint("DistanceY", 0, 2, 4, 2, 0.04),
    Sketcher.Constraint("DistanceY", 0, 2, -1, 1, 0.1075),
])
sketch13.setExpression("Constraints[16]", "Params.sketch13_width")
sketch13.setExpression("Constraints[17]", "Params.sketch13_width2")
sketch13.setExpression("Constraints[18]", "Params.sketch13_height")
sketch13.setExpression("Constraints[19]", "Params.sketch13_height2")
pad13 = body12.newObject("PartDesign::Pad", "Pad012")
pad13.Profile = sketch13
pad13.setExpression("Length", "Params.pad13_length")
body13 = doc.addObject("PartDesign::Body", "Body012")

# Sketch on an angled plane
sketch14 = body13.newObject("Sketcher::SketchObject", "Sketch013")
sketch14.Placement = App.Placement(Vector(0.410122, 0.410122, 0), App.Rotation(Vector(0.707106781, -0.707106781, 0), Vector(0, 0, -0.999999999), Vector(0.707106781, 0.707106781, 0), "ZXY"))
add_polygon(sketch14, [(-0.19, 0.05), (-0.19, -0.11), (0.19, -0.11), (0.19, 0.05)])  # lines 0-3
add_polygon(sketch14, [(0.15, -0.07), (-0.15, -0.07), (-0.15, 0.01), (0.15, 0.01)])  # lines 4-7
sketch14.addConstraint([
    Sketcher.Constraint("Vertical", 0),
    Sketcher.Constraint("Horizontal", 1),
    Sketcher.Constraint("Vertical", 2),
    Sketcher.Constraint("Horizontal", 3),
    Sketcher.Constraint("Horizontal", 4),
    Sketcher.Constraint("Vertical", 5),
    Sketcher.Constraint("Horizontal", 6),
    Sketcher.Constraint("Vertical", 7),
    Sketcher.Constraint("DistanceX", 4, 2, 4, 1, 0.3),
    Sketcher.Constraint("DistanceX", 1, 1, 1, 2, 0.38),
    Sketcher.Constraint("DistanceY", 0, 2, 0, 1, 0.16),
    Sketcher.Constraint("DistanceY", 5, 1, 5, 2, 0.08),
    Sketcher.Constraint("DistanceX", 0, 2, -1, 1, 0.19),
    Sketcher.Constraint("DistanceX", 4, 2, -1, 1, 0.15),
    Sketcher.Constraint("DistanceY", 0, 2, 4, 2, 0.04),
    Sketcher.Constraint("DistanceY", 0, 2, -1, 1, 0.1075),
])
sketch14.setExpression("Constraints[16]", "Params.sketch14_width")
sketch14.setExpression("Constraints[17]", "Params.sketch14_width2")
sketch14.setExpression("Constraints[18]", "Params.sketch14_height")
sketch14.setExpression("Constraints[19]", "Params.sketch14_height2")
pad14 = body13.newObject("PartDesign::Pad", "Pad013")
pad14.Profile = sketch14
pad14.setExpression("Length", "Params.pad14_length")
body14 = doc.addObject("PartDesign::Body", "Body013")

# Sketch on an angled plane
sketch15 = body14.newObject("Sketcher::SketchObject", "Sketch014")
sketch15.Placement = App.Placement(Vector(-0.240416, -0.240416, 0), App.Rotation(Vector(0.707106781, -0.707106781, 0), Vector(0, 0, -0.999999999), Vector(0.707106781, 0.707106781, 0), "ZXY"))
add_polygon(sketch15, [(-0.19, 0.05), (-0.19, -0.11), (0.19, -0.11), (0.19, 0.05)])  # lines 0-3
add_polygon(sketch15, [(0.15, -0.07), (-0.15, -0.07), (-0.15, 0.01), (0.15, 0.01)])  # lines 4-7
sketch15.addConstraint([
    Sketcher.Constraint("Vertical", 0),
    Sketcher.Constraint("Horizontal", 1),
    Sketcher.Constraint("Vertical", 2),
    Sketcher.Constraint("Horizontal", 3),
    Sketcher.Constraint("Horizontal", 4),
    Sketcher.Constraint("Vertical", 5),
    Sketcher.Constraint("Horizontal", 6),
    Sketcher.Constraint("Vertical", 7),
    Sketcher.Constraint("DistanceX", 4, 2, 4, 1, 0.3),
    Sketcher.Constraint("DistanceX", 1, 1, 1, 2, 0.38),
    Sketcher.Constraint("DistanceY", 0, 2, 0, 1, 0.16),
    Sketcher.Constraint("DistanceY", 5, 1, 5, 2, 0.08),
    Sketcher.Constraint("DistanceX", 0, 2, -1, 1, 0.19),
    Sketcher.Constraint("DistanceX", 4, 2, -1, 1, 0.15),
    Sketcher.Constraint("DistanceY", 0, 2, 4, 2, 0.04),
    Sketcher.Constraint("DistanceY", 0, 2, -1, 1, 0.1075),
])
sketch15.setExpression("Constraints[16]", "Params.sketch15_width")
sketch15.setExpression("Constraints[17]", "Params.sketch15_width2")
sketch15.setExpression("Constraints[18]", "Params.sketch15_height")
sketch15.setExpression("Constraints[19]", "Params.sketch15_height2")
pad15 = body14.newObject("PartDesign::Pad", "Pad014")
pad15.Profile = sketch15
pad15.setExpression("Length", "Params.pad15_length")
pad15.Reversed = True
body15 = doc.addObject("PartDesign::Body", "Body014")

# Sketch on an angled plane
sketch16 = body15.newObject("Sketcher::SketchObject", "Sketch015")
sketch16.Placement = App.Placement(Vector(-0.296985, -0.296985, 0), App.Rotation(Vector(0.707106781, -0.707106781, 0), Vector(0, 0, -0.999999999), Vector(0.707106781, 0.707106781, 0), "ZXY"))
add_polygon(sketch16, [(-0.19, 0.05), (-0.19, -0.11), (0.19, -0.11), (0.19, 0.05)])  # lines 0-3
add_polygon(sketch16, [(0.15, -0.07), (-0.15, -0.07), (-0.15, 0.01), (0.15, 0.01)])  # lines 4-7
sketch16.addConstraint([
    Sketcher.Constraint("Vertical", 0),
    Sketcher.Constraint("Horizontal", 1),
    Sketcher.Constraint("Vertical", 2),
    Sketcher.Constraint("Horizontal", 3),
    Sketcher.Constraint("Horizontal", 4),
    Sketcher.Constraint("Vertical", 5),
    Sketcher.Constraint("Horizontal", 6),
    Sketcher.Constraint("Vertical", 7),
    Sketcher.Constraint("DistanceX", 4, 2, 4, 1, 0.3),
    Sketcher.Constraint("DistanceX", 1, 1, 1, 2, 0.38),
    Sketcher.Constraint("DistanceY", 0, 2, 0, 1, 0.16),
    Sketcher.Constraint("DistanceY", 5, 1, 5, 2, 0.08),
    Sketcher.Constraint("DistanceX", 0, 2, -1, 1, 0.19),
    Sketcher.Constraint("DistanceX", 4, 2, -1, 1, 0.15),
    Sketcher.Constraint("DistanceY", 0, 2, 4, 2, 0.04),
    Sketcher.Constraint("DistanceY", 0, 2, -1, 1, 0.1075),
])
sketch16.setExpression("Constraints[16]", "Params.sketch16_width")
sketch16.setExpression("Constraints[17]", "Params.sketch16_width2")
sketch16.setExpression("Constraints[18]", "Params.sketch16_height")
sketch16.setExpression("Constraints[19]", "Params.sketch16_height2")
pad16 = body15.newObject("PartDesign::Pad", "Pad015")
pad16.Profile = sketch16
pad16.setExpression("Length", "Params.pad16_length")
pad16.Reversed = True
body16 = doc.addObject("PartDesign::Body", "Body015")

# Sketch on an angled plane
sketch17 = body16.newObject("Sketcher::SketchObject", "Sketch016")
sketch17.Placement = App.Placement(Vector(-0.353553, -0.353553, 0), App.Rotation(Vector(0.707106781, -0.707106781, 0), Vector(0, 0, -0.999999999), Vector(0.707106781, 0.707106781, 0), "ZXY"))
add_polygon(sketch17, [(-0.19, 0.05), (-0.19, -0.11), (0.19, -0.11), (0.19, 0.05)])  # lines 0-3
add_polygon(sketch17, [(0.15, -0.07), (-0.15, -0.07), (-0.15, 0.01), (0.15, 0.01)])  # lines 4-7
sketch17.addConstraint([
    Sketcher.Constraint("Vertical", 0),
    Sketcher.Constraint("Horizontal", 1),
    Sketcher.Constraint("Vertical", 2),
    Sketcher.Constraint("Horizontal", 3),
    Sketcher.Constraint("Horizontal", 4),
    Sketcher.Constraint("Vertical", 5),
    Sketcher.Constraint("Horizontal", 6),
    Sketcher.Constraint("Vertical", 7),
    Sketcher.Constraint("DistanceX", 4, 2, 4, 1, 0.3),
    Sketcher.Constraint("DistanceX", 1, 1, 1, 2, 0.38),
    Sketcher.Constraint("DistanceY", 0, 2, 0, 1, 0.16),
    Sketcher.Constraint("DistanceY", 5, 1, 5, 2, 0.08),
    Sketcher.Constraint("DistanceX", 0, 2, -1, 1, 0.19),
    Sketcher.Constraint("DistanceX", 4, 2, -1, 1, 0.15),
    Sketcher.Constraint("DistanceY", 0, 2, 4, 2, 0.04),
    Sketcher.Constraint("DistanceY", 0, 2, -1, 1, 0.1075),
])
sketch17.setExpression("Constraints[16]", "Params.sketch17_width")
sketch17.setExpression("Constraints[17]", "Params.sketch17_width2")
sketch17.setExpression("Constraints[18]", "Params.sketch17_height")
sketch17.setExpression("Constraints[19]", "Params.sketch17_height2")
pad17 = body16.newObject("PartDesign::Pad", "Pad016")
pad17.Profile = sketch17
pad17.setExpression("Length", "Params.pad17_length")
pad17.Reversed = True
body17 = doc.addObject("PartDesign::Body", "Body016")

# Sketch on an angled plane
sketch18 = body17.newObject("Sketcher::SketchObject", "Sketch017")
sketch18.Placement = App.Placement(Vector(-0.410122, -0.410122, 0), App.Rotation(Vector(0.707106781, -0.707106781, 0), Vector(0, 0, -0.999999999), Vector(0.707106781, 0.707106781, 0), "ZXY"))
add_polygon(sketch18, [(-0.19, 0.05), (-0.19, -0.11), (0.19, -0.11), (0.19, 0.05)])  # lines 0-3
add_polygon(sketch18, [(0.15, -0.07), (-0.15, -0.07), (-0.15, 0.01), (0.15, 0.01)])  # lines 4-7
sketch18.addConstraint([
    Sketcher.Constraint("Vertical", 0),
    Sketcher.Constraint("Horizontal", 1),
    Sketcher.Constraint("Vertical", 2),
    Sketcher.Constraint("Horizontal", 3),
    Sketcher.Constraint("Horizontal", 4),
    Sketcher.Constraint("Vertical", 5),
    Sketcher.Constraint("Horizontal", 6),
    Sketcher.Constraint("Vertical", 7),
    Sketcher.Constraint("DistanceX", 4, 2, 4, 1, 0.3),
    Sketcher.Constraint("DistanceX", 1, 1, 1, 2, 0.38),
    Sketcher.Constraint("DistanceY", 0, 2, 0, 1, 0.16),
    Sketcher.Constraint("DistanceY", 5, 1, 5, 2, 0.08),
    Sketcher.Constraint("DistanceX", 0, 2, -1, 1, 0.19),
    Sketcher.Constraint("DistanceX", 4, 2, -1, 1, 0.15),
    Sketcher.Constraint("DistanceY", 0, 2, 4, 2, 0.04),
    Sketcher.Constraint("DistanceY", 0, 2, -1, 1, 0.1075),
])
sketch18.setExpression("Constraints[16]", "Params.sketch18_width")
sketch18.setExpression("Constraints[17]", "Params.sketch18_width2")
sketch18.setExpression("Constraints[18]", "Params.sketch18_height")
sketch18.setExpression("Constraints[19]", "Params.sketch18_height2")
pad18 = body17.newObject("PartDesign::Pad", "Pad017")
pad18.Profile = sketch18
pad18.setExpression("Length", "Params.pad18_length")
pad18.Reversed = True
body18 = doc.addObject("PartDesign::Body", "Body017")

# Sketch on an angled plane
sketch19 = body18.newObject("Sketcher::SketchObject", "Sketch018")
sketch19.Placement = App.Placement(Vector(0.438406, 0.438406, 0), App.Rotation(Vector(0, 0, -1), Vector(-0.707106781, 0.707106781, 0), Vector(0.707106781, 0.707106781, 0), "ZXY"))
add_polygon(sketch19, [(0.013, 0.018), (0.013, 0), (0.052, 0), (0.052, 0.018)])  # lines 0-3
sketch19.addConstraint([
    Sketcher.Constraint("Vertical", 0),
    Sketcher.Constraint("Horizontal", 1),
    Sketcher.Constraint("Vertical", 2),
    Sketcher.Constraint("Horizontal", 3),
    Sketcher.Constraint("PointOnObject", 0, 2, -1),
    Sketcher.Constraint("DistanceX", 1, 1, 1, 2, 0.04),
    Sketcher.Constraint("DistanceY", 0, 2, 0, 1, 0.01798),
    Sketcher.Constraint("DistanceX", -1, 1, 0, 2, 0.0125),
])
sketch19.setExpression("Constraints[9]", "Params.sketch19_width")
pad19 = body18.newObject("PartDesign::Pad", "Pad018")
pad19.Profile = sketch19
pad19.setExpression("Length", "Params.pad19_length")
pad19.Reversed = True
doc.recompute()

body19 = doc.addObject("PartDesign::Body", "Body018")
body19.BaseFeature = body18
boolean = body2.newObject("PartDesign::Boolean", "Boolean")
boolean.Type = "Cut"
boolean.addObjects([body19])
doc.recompute()

body20 = doc.addObject("PartDesign::Body", "Body019")
body20.BaseFeature = body18
boolean2 = body11.newObject("PartDesign::Boolean", "Boolean001")
boolean2.Type = "Cut"
boolean2.addObjects([body20])
doc.recompute()

body21 = doc.addObject("PartDesign::Body", "Body020")
body21.BaseFeature = body18
boolean3 = body12.newObject("PartDesign::Boolean", "Boolean002")
boolean3.Type = "Cut"
boolean3.addObjects([body21])
doc.recompute()

boolean4 = body13.newObject("PartDesign::Boolean", "Boolean003")
boolean4.Type = "Cut"
boolean4.addObjects([body18])

doc.recompute()
